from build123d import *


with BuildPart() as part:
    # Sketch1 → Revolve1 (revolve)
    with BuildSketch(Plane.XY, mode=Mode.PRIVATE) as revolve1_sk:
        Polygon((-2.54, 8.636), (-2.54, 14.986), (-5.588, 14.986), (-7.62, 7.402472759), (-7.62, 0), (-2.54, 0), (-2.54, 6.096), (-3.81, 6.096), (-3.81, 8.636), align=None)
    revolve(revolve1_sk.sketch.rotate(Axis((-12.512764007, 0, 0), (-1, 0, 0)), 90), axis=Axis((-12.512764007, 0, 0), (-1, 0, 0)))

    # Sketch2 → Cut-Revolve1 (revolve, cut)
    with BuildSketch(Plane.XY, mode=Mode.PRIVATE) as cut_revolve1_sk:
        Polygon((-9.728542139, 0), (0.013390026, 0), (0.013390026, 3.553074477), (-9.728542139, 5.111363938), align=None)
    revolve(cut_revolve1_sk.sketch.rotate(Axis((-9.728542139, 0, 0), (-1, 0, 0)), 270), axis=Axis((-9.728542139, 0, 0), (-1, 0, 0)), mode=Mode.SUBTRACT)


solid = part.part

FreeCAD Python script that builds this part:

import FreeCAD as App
import Part
import Sketcher
from FreeCAD import Vector
Q = App.Units.Quantity


def add_polygon(sketch, points):
    """Adds a closed chain of lines whose ends are joined by coincident constraints."""
    first, n = sketch.GeometryCount, len(points)
    for a, b in zip(points, points[1:] + points[:1]):
        sketch.addGeometry(Part.LineSegment(App.Vector(*a, 0), App.Vector(*b, 0)), False)
    for i in range(n):
        sketch.addConstraint(Sketcher.Constraint("Coincident", first + i, 2, first + (i + 1) % n, 1))

doc = App.newDocument("Part")
body = doc.addObject("PartDesign::Body", "Body")

sketch1 = body.newObject("Sketcher::SketchObject", "Sketch")
sketch1.AttachmentSupport = (doc.getObject("XY_Plane"), [""])
sketch1.MapMode = "FlatFace"
add_polygon(sketch1, [(-2.5, 8.6), (-2.5, 15), (-5.6, 15), (-7.6, 7.4), (-7.6, 0), (-2.5, 0), (-2.5, 6.1), (-3.8, 6.1), (-3.8, 8.6)])
sketch1.addConstraint([
    Sketcher.Constraint("Vertical", 0),
    Sketcher.Constraint("Horizontal", 1),
    Sketcher.Constraint("Vertical", 3),
    Sketcher.Constraint("Horizontal", 4),
    Sketcher.Constraint("Vertical", 5),
    Sketcher.Constraint("Horizontal", 6),
    Sketcher.Constraint("Vertical", 7),
    Sketcher.Constraint("Horizontal", 8),
    Sketcher.Constraint("PointOnObject", 3, 2, -1),
    Sketcher.Constraint("Vertical", 0, 2, 4, 2),
    Sketcher.Constraint("DistanceX", 4, 1, 4, 2, Q("0.2 in")),
    Sketcher.Constraint("DistanceY", 7, 1, 7, 2, Q("0.1 in")),
    Sketcher.Constraint("Angle", 2, Q("-105 deg")),
    Sketcher.Constraint("DistanceX", 1, 2, 1, 1, Q("0.12 in")),
    Sketcher.Constraint("DistanceX", 6, 2, 6, 1, Q("0.05 in")),
    Sketcher.Constraint("DistanceY", 0, 1, 0, 2, Q("0.25 in")),
    Sketcher.Constraint("DistanceY", 5, 1, 5, 2, Q("0.24 in")),
    Sketcher.Constraint("DistanceX", 0, 2, -1, 1, Q("0.1 in")),
])
revolution = body.newObject("PartDesign::Revolution", "Revolution")
revolution.Profile = sketch1
revolution.ReferenceAxis = (sketch1, ["H_Axis"])
revolution.Angle = 360

sketch2 = body.newObject("Sketcher::SketchObject", "Sketch001")
sketch2.AttachmentSupport = (doc.getObject("XY_Plane"), [""])
sketch2.MapMode = "FlatFace"
add_polygon(sketch2, [(-9.7, 0), (0, 0), (0, 3.6), (-9.7, 5.1)])
sketch2.addConstraint([
    Sketcher.Constraint("Horizontal", 0),
    Sketcher.Constraint("Vertical", 1),
    Sketcher.Constraint("Vertical", 3),
    Sketcher.Constraint("PointOnObject", 0, 2, -1),
    Sketcher.Constraint("DistanceX", 0, 1, 0, 2, 9.741932),
    Sketcher.Constraint("DistanceY", 1, 1, 1, 2, 3.553074),
    Sketcher.Constraint("DistanceY", 3, 2, 3, 1, 5.111364),
    Sketcher.Constraint("DistanceX", -1, 1, 0, 2, 0.01339),
])
groove = body.newObject("PartDesign::Groove", "Groove")
groove.Profile = sketch2
groove.ReferenceAxis = (sketch2, ["H_Axis"])
groove.Angle = 360

doc.recompute()
